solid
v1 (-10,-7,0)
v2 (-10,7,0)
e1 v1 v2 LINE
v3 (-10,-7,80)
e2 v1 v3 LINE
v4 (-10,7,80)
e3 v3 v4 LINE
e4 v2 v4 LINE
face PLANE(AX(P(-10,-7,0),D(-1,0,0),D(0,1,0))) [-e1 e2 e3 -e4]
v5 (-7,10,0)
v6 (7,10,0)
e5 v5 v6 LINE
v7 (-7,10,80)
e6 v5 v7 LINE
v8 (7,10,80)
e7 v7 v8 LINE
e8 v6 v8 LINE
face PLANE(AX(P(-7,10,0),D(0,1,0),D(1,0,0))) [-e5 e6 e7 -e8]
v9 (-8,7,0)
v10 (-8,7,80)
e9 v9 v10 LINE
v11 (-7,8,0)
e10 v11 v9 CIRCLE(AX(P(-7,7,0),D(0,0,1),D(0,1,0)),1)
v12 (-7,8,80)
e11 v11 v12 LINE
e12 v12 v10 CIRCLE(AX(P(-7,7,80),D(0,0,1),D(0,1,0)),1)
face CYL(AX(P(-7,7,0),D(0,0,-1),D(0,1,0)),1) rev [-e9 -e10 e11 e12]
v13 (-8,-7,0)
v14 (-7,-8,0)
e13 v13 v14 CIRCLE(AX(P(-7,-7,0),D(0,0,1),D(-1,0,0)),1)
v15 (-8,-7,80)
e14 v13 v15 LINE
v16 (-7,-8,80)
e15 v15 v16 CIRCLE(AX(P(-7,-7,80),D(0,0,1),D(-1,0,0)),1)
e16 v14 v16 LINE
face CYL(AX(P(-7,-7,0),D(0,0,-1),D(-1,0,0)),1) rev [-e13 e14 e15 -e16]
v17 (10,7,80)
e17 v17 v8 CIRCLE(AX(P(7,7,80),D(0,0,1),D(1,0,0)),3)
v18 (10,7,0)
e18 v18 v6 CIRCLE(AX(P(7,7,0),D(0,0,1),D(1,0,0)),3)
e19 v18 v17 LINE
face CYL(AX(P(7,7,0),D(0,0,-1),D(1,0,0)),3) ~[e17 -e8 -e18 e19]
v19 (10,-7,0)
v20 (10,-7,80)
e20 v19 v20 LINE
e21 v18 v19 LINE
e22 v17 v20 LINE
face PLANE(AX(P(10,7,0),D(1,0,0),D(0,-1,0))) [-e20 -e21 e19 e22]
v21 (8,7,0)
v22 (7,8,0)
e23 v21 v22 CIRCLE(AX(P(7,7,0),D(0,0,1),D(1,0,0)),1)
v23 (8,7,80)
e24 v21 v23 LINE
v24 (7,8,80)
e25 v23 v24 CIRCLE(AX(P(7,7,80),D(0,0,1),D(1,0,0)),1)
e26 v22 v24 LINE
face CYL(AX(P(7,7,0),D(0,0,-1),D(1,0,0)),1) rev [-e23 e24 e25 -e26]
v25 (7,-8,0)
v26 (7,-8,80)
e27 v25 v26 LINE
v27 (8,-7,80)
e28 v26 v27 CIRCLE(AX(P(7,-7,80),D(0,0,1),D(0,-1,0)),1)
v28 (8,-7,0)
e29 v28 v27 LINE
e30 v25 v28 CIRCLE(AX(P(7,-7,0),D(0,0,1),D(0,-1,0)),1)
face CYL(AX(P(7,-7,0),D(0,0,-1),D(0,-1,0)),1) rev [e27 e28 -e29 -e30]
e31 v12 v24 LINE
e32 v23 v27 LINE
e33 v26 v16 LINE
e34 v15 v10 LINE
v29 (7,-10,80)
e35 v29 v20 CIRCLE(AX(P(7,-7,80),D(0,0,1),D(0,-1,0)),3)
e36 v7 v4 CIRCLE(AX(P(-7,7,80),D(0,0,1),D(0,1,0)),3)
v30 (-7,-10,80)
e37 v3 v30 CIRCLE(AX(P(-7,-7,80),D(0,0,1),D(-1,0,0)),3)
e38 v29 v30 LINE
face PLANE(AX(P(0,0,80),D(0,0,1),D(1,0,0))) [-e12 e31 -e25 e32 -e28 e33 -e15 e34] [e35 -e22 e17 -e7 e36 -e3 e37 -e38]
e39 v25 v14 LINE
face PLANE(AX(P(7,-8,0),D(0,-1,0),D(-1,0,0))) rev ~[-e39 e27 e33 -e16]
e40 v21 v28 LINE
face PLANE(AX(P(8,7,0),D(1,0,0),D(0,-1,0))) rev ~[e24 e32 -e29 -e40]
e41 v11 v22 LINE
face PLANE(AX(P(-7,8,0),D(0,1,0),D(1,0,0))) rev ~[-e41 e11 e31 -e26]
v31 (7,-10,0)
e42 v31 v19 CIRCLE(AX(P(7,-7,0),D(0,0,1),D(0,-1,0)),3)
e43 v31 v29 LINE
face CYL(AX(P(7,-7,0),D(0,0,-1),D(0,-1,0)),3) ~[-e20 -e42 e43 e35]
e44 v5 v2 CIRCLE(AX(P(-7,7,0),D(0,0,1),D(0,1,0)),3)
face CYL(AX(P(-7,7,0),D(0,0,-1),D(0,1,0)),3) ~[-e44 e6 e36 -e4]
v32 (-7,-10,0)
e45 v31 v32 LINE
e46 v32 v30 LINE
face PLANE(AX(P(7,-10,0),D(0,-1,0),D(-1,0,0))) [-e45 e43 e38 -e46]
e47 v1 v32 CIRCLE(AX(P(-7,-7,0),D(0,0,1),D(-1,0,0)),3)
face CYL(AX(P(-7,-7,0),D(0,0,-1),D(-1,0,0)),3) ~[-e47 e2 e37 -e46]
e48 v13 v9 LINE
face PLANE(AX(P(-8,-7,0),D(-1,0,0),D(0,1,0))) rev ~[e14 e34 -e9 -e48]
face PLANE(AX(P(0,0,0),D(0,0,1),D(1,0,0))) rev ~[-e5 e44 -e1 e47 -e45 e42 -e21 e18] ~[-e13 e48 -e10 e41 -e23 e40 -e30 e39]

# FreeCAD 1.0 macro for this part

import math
import FreeCAD as App
import Part
import Sketcher
from FreeCAD import Vector
Q = App.Units.Quantity

doc = App.newDocument("Part")
params = doc.addObject("Spreadsheet::Sheet", "Params")
for row, (alias, value) in enumerate([
    ("sketch1_radius", "3 mm"),
    ("sketch1_radius2", "1 mm"),
    ("pad1_length", "80 mm"),
], start=1):
    params.set(f"A{row}", alias)
    params.set(f"B{row}", "=" + value)
    params.setAlias(f"B{row}", alias)

body = doc.addObject("PartDesign::Body", "Body")

sketch1 = body.newObject("Sketcher::SketchObject", "Sketch")
sketch1.AttachmentSupport = (doc.getObject("XY_Plane"), [""])
sketch1.MapMode = "FlatFace"
sketch1.addGeometry(Part.LineSegment(Vector(-10, 7, 0), Vector(-10, -7, 0)), False)
sketch1.addGeometry(Part.ArcOfCircle(Part.Circle(Vector(-7, -7, 0), Vector(0, 0, 1), 3), math.radians(180), math.radians(270)), False)
sketch1.addGeometry(Part.LineSegment(Vector(-7, -10, 0), Vector(7, -10, 0)), False)
sketch1.addGeometry(Part.ArcOfCircle(Part.Circle(Vector(7, -7, 0), Vector(0, 0, 1), 3), math.radians(-90), math.radians(0)), False)
sketch1.addGeometry(Part.LineSegment(Vector(10, -7, 0), Vector(10, 7, 0)), False)
sketch1.addGeometry(Part.ArcOfCircle(Part.Circle(Vector(7, 7, 0), Vector(0, 0, 1), 3), math.radians(0), math.radians(90)), False)
sketch1.addGeometry(Part.LineSegment(Vector(7, 10, 0), Vector(-7, 10, 0)), False)
sketch1.addGeometry(Part.ArcOfCircle(Part.Circle(Vector(-7, 7, 0), Vector(0, 0, 1), 3), math.radians(90), math.radians(180)), False)
sketch1.addGeometry(Part.ArcOfCircle(Part.Circle(Vector(-7, 7, 0), Vector(0, 0, 1), 1), math.radians(90), math.radians(180)), False)
sketch1.addGeometry(Part.LineSegment(Vector(-7, 8, 0), Vector(7, 8, 0)), False)
sketch1.addGeometry(Part.ArcOfCircle(Part.Circle(Vector(7, 7, 0), Vector(0, 0, 1), 1), math.radians(0), math.radians(90)), False)
sketch1.addGeometry(Part.LineSegment(Vector(8, 7, 0), Vector(8, -7, 0)), False)
sketch1.addGeometry(Part.ArcOfCircle(Part.Circle(Vector(7, -7, 0), Vector(0, 0, 1), 1), math.radians(-90), math.radians(0)), False)
sketch1.addGeometry(Part.LineSegment(Vector(7, -8, 0), Vector(-7, -8, 0)), False)
sketch1.addGeometry(Part.ArcOfCircle(Part.Circle(Vector(-7, -7, 0), Vector(0, 0, 1), 1), math.radians(180), math.radians(270)), False)
sketch1.addGeometry(Part.LineSegment(Vector(-8, -7, 0), Vector(-8, 7, 0)), False)
sketch1.addConstraint(Sketcher.Constraint("Tangent", 0, 2, 1, 1))
sketch1.addConstraint(Sketcher.Constraint("Tangent", 1, 2, 2, 1))
sketch1.addConstraint(Sketcher.Constraint("Tangent", 2, 2, 3, 1))
sketch1.addConstraint(Sketcher.Constraint("Tangent", 3, 2, 4, 1))
sketch1.addConstraint(Sketcher.Constraint("Tangent", 4, 2, 5, 1))
sketch1.addConstraint(Sketcher.Constraint("Tangent", 5, 2, 6, 1))
sketch1.addConstraint(Sketcher.Constraint("Tangent", 6, 2, 7, 1))
sketch1.addConstraint(Sketcher.Constraint("Tangent", 7, 2, 0, 1))
sketch1.addConstraint(Sketcher.Constraint("Tangent", 8, 1, 9, 1))
sketch1.addConstraint(Sketcher.Constraint("Tangent", 9, 2, 10, 2))
sketch1.addConstraint(Sketcher.Constraint("Tangent", 10, 1, 11, 1))
sketch1.addConstraint(Sketcher.Constraint("Tangent", 11, 2, 12, 2))
sketch1.addConstraint(Sketcher.Constraint("Tangent", 12, 1, 13, 1))
sketch1.addConstraint(Sketcher.Constraint("Tangent", 13, 2, 14, 2))
sketch1.addConstraint(Sketcher.Constraint("Tangent", 14, 1, 15, 1))
sketch1.addConstraint(Sketcher.Constraint("Tangent", 15, 2, 8, 2))
sketch1.addConstraint(Sketcher.Constraint("Vertical", 0))
sketch1.addConstraint(Sketcher.Constraint("Horizontal", 2))
sketch1.addConstraint(Sketcher.Constraint("Vertical", 4))
sketch1.addConstraint(Sketcher.Constraint("Horizontal", 6))
sketch1.addConstraint(Sketcher.Constraint("Horizontal", 9))
sketch1.addConstraint(Sketcher.Constraint("Vertical", 11))
sketch1.addConstraint(Sketcher.Constraint("Horizontal", 13))
sketch1.addConstraint(Sketcher.Constraint("Vertical", 15))
sketch1.addConstraint(Sketcher.Constraint("Coincident", 8, 3, 7, 3))
sketch1.addConstraint(Sketcher.Constraint("Coincident", 10, 3, 5, 3))
sketch1.addConstraint(Sketcher.Constraint("Coincident", 12, 3, 3, 3))
sketch1.addConstraint(Sketcher.Constraint("Equal", 1, 3))
sketch1.addConstraint(Sketcher.Constraint("Equal", 3, 5))
sketch1.addConstraint(Sketcher.Constraint("Equal", 5, 7))
sketch1.addConstraint(Sketcher.Constraint("Equal", 12, 14))
sketch1.addConstraint(Sketcher.Constraint("Symmetric", 1, 3, 5, 3, -1, 1))
sketch1.addConstraint(Sketcher.Constraint("Equal", 13, 0))
sketch1.addConstraint(Sketcher.Constraint("Radius", 1, Q("3 mm")))
sketch1.addConstraint(Sketcher.Constraint("Radius", 8, Q("1 mm")))
sketch1.addConstraint(Sketcher.Constraint("DistanceX", 0, 2, -1, 1, Q("10 mm")))
sketch1.setExpression("Constraints[33]", "Params.sketch1_radius")
sketch1.setExpression("Constraints[34]", "Params.sketch1_radius2")
pad1 = body.newObject("PartDesign::Pad", "Pad")
pad1.Profile = sketch1
pad1.setExpression("Length", "Params.pad1_length")

doc.recompute()
